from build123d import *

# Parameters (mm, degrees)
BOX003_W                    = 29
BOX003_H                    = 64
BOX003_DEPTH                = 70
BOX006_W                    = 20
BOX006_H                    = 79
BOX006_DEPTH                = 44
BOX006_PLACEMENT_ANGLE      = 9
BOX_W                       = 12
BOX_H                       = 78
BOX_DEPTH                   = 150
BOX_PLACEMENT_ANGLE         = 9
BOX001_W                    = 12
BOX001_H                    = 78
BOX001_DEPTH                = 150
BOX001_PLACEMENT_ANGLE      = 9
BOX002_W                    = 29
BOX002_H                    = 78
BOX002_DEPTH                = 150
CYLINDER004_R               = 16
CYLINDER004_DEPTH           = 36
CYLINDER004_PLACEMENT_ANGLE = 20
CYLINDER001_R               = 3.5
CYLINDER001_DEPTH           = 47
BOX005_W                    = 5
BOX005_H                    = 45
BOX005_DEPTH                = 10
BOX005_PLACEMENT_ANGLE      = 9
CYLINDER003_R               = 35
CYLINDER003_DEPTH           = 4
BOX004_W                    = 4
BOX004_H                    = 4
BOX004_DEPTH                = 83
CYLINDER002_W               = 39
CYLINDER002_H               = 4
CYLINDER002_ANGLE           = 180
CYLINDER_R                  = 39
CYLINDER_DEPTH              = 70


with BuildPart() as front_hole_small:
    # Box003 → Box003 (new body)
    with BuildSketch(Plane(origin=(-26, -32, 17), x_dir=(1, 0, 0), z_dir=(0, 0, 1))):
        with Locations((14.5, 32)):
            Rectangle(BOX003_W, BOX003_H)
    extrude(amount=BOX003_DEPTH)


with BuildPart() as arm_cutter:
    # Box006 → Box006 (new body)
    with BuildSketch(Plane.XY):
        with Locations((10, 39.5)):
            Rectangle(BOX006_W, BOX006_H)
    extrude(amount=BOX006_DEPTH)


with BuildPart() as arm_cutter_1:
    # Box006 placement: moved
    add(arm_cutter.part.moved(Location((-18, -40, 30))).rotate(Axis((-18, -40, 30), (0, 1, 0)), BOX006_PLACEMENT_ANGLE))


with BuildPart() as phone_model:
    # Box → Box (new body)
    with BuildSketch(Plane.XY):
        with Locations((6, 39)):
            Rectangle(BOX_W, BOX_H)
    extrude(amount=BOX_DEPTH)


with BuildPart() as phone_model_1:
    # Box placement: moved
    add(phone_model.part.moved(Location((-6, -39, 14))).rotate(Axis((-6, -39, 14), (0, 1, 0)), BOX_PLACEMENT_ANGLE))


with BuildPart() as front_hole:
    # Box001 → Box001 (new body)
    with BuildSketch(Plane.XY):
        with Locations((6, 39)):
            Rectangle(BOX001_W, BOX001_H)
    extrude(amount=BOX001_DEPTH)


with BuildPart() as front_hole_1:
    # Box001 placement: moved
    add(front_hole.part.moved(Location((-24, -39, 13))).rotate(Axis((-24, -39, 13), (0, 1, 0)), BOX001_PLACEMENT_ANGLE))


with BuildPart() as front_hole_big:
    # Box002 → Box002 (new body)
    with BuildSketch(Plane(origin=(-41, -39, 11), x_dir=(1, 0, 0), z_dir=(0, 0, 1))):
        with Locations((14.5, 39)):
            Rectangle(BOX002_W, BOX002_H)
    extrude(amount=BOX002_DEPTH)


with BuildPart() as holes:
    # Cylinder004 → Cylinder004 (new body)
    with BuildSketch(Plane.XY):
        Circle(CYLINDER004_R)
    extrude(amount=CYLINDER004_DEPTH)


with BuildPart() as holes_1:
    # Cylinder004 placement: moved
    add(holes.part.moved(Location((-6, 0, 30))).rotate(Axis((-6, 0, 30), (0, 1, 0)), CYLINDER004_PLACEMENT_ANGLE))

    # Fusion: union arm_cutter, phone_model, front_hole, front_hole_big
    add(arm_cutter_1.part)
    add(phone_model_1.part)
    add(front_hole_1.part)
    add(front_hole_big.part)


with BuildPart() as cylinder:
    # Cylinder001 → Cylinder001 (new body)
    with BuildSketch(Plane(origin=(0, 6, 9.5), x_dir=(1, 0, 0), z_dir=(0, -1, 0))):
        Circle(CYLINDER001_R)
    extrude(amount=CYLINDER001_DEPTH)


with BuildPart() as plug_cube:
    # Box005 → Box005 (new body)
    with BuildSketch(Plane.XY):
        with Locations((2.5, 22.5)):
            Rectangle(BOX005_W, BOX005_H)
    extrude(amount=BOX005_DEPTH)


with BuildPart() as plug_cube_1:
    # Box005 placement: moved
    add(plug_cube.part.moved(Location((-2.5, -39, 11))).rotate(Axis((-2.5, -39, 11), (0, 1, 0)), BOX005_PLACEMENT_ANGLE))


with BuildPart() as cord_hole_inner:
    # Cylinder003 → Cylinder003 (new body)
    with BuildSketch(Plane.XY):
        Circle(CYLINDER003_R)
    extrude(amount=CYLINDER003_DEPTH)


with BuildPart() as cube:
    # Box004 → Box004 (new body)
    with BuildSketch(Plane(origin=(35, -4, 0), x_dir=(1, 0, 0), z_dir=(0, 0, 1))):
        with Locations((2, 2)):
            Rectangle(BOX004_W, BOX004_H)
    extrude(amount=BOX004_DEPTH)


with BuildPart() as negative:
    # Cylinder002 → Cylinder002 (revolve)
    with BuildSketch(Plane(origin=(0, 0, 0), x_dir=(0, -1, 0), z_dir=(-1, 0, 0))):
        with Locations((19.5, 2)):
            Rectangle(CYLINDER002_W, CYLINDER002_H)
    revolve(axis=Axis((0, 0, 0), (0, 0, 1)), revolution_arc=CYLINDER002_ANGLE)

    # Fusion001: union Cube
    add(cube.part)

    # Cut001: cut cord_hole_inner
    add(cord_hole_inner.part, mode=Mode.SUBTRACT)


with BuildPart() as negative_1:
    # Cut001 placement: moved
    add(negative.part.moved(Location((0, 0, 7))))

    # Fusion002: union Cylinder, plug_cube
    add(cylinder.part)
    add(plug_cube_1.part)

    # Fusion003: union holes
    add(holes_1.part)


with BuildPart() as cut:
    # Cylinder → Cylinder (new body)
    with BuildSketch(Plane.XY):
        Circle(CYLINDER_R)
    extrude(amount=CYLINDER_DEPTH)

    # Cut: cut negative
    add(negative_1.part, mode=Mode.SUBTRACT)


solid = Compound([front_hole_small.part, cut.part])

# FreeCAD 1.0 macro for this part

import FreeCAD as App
import Part
import Sketcher

V = App.Vector
Q = App.Units.Quantity


def add_polygon(sketch, points):
    """Adds a closed chain of lines whose ends are joined by coincident constraints."""
    first, n = sketch.GeometryCount, len(points)
    for a, b in zip(points, points[1:] + points[:1]):
        sketch.addGeometry(Part.LineSegment(App.Vector(*a, 0), App.Vector(*b, 0)), False)
    for i in range(n):
        sketch.addConstraint(Sketcher.Constraint("Coincident", first + i, 2, first + (i + 1) % n, 1))

doc = App.newDocument("Part")
body = doc.addObject("PartDesign::Body", "Body")

sketch1 = doc.addObject("Sketcher::SketchObject", "Sketch")
body.addObject(sketch1)
sketch1.AttachmentSupport = (doc.XY_Plane, [""])
sketch1.MapMode = "FlatFace"
sketch1.AttachmentOffset = App.Placement(V(0, 0, 17), App.Rotation())
add_polygon(sketch1, [(-26, 32), (-26, -32), (3, -32), (3, 32)])
sketch1.addConstraint(Sketcher.Constraint("Vertical", 0))
sketch1.addConstraint(Sketcher.Constraint("Horizontal", 1))
sketch1.addConstraint(Sketcher.Constraint("Vertical", 2))
sketch1.addConstraint(Sketcher.Constraint("Horizontal", 3))
sketch1.addConstraint(Sketcher.Constraint("DistanceX", 1, 1, 1, 2, Q("29 mm")))
sketch1.addConstraint(Sketcher.Constraint("DistanceY", 0, 2, 0, 1, Q("64 mm")))
sketch1.addConstraint(Sketcher.Constraint("DistanceX", 0, 2, -1, 1, Q("26 mm")))
sketch1.addConstraint(Sketcher.Constraint("DistanceY", 0, 2, -1, 1, Q("32 mm")))
pad1 = doc.addObject("PartDesign::Pad", "Pad")
body.addObject(pad1)
pad1.Profile = sketch1
pad1.Length = 70
body2 = doc.addObject("PartDesign::Body", "Body001")

sketch2 = doc.addObject("Sketcher::SketchObject", "Sketch001")
body2.addObject(sketch2)
sketch2.AttachmentSupport = (doc.getObject("XY_Plane001"), [""])
sketch2.MapMode = "FlatFace"
add_polygon(sketch2, [(0, 79), (0, 0), (20, 0), (20, 79)])
sketch2.addConstraint(Sketcher.Constraint("Vertical", 0))
sketch2.addConstraint(Sketcher.Constraint("Horizontal", 1))
sketch2.addConstraint(Sketcher.Constraint("Vertical", 2))
sketch2.addConstraint(Sketcher.Constraint("Horizontal", 3))
sketch2.addConstraint(Sketcher.Constraint("Coincident", 0, 2, -1, 1))
sketch2.addConstraint(Sketcher.Constraint("DistanceX", 1, 1, 1, 2, Q("20 mm")))
sketch2.addConstraint(Sketcher.Constraint("DistanceY", 0, 2, 0, 1, Q("79 mm")))
pad2 = doc.addObject("PartDesign::Pad", "Pad001")
body2.addObject(pad2)
pad2.Profile = sketch2
pad2.Length = 44
body3 = doc.addObject("PartDesign::Body", "Body002")
doc.recompute()

body2.Placement = App.Placement(V(-18, -40, 30), App.Rotation(V(0, 1, 0), 9))
boolean = doc.addObject("PartDesign::Boolean", "Boolean")
body3.addObject(boolean)
boolean.Type = "Fuse"
boolean.addObjects([body2])
body4 = doc.addObject("PartDesign::Body", "Body003")

sketch3 = doc.addObject("Sketcher::SketchObject", "Sketch002")
body4.addObject(sketch3)
sketch3.AttachmentSupport = (doc.getObject("XY_Plane003"), [""])
sketch3.MapMode = "FlatFace"
add_polygon(sketch3, [(0, 78), (0, 0), (12, 0), (12, 78)])
sketch3.addConstraint(Sketcher.Constraint("Vertical", 0))
sketch3.addConstraint(Sketcher.Constraint("Horizontal", 1))
sketch3.addConstraint(Sketcher.Constraint("Vertical", 2))
sketch3.addConstraint(Sketcher.Constraint("Horizontal", 3))
sketch3.addConstraint(Sketcher.Constraint("Coincident", 0, 2, -1, 1))
sketch3.addConstraint(Sketcher.Constraint("DistanceX", 1, 1, 1, 2, Q("12 mm")))
sketch3.addConstraint(Sketcher.Constraint("DistanceY", 0, 2, 0, 1, Q("78 mm")))
pad3 = doc.addObject("PartDesign::Pad", "Pad002")
body4.addObject(pad3)
pad3.Profile = sketch3
pad3.Length = 150
body5 = doc.addObject("PartDesign::Body", "Body004")
doc.recompute()

body4.Placement = App.Placement(V(-6, -39, 14), App.Rotation(V(0, 1, 0), 9))
boolean2 = doc.addObject("PartDesign::Boolean", "Boolean001")
body5.addObject(boolean2)
boolean2.Type = "Fuse"
boolean2.addObjects([body4])
body6 = doc.addObject("PartDesign::Body", "Body005")

sketch4 = doc.addObject("Sketcher::SketchObject", "Sketch003")
body6.addObject(sketch4)
sketch4.AttachmentSupport = (doc.getObject("XY_Plane005"), [""])
sketch4.MapMode = "FlatFace"
add_polygon(sketch4, [(0, 78), (0, 0), (12, 0), (12, 78)])
sketch4.addConstraint(Sketcher.Constraint("Vertical", 0))
sketch4.addConstraint(Sketcher.Constraint("Horizontal", 1))
sketch4.addConstraint(Sketcher.Constraint("Vertical", 2))
sketch4.addConstraint(Sketcher.Constraint("Horizontal", 3))
sketch4.addConstraint(Sketcher.Constraint("Coincident", 0, 2, -1, 1))
sketch4.addConstraint(Sketcher.Constraint("DistanceX", 1, 1, 1, 2, Q("12 mm")))
sketch4.addConstraint(Sketcher.Constraint("DistanceY", 0, 2, 0, 1, Q("78 mm")))
pad4 = doc.addObject("PartDesign::Pad", "Pad003")
body6.addObject(pad4)
pad4.Profile = sketch4
pad4.Length = 150
body7 = doc.addObject("PartDesign::Body", "Body006")
doc.recompute()

body6.Placement = App.Placement(V(-24, -39, 13), App.Rotation(V(0, 1, 0), 9))
boolean3 = doc.addObject("PartDesign::Boolean", "Boolean002")
body7.addObject(boolean3)
boolean3.Type = "Fuse"
boolean3.addObjects([body6])
body8 = doc.addObject("PartDesign::Body", "Body007")

sketch5 = doc.addObject("Sketcher::SketchObject", "Sketch004")
body8.addObject(sketch5)
sketch5.AttachmentSupport = (doc.getObject("XY_Plane007"), [""])
sketch5.MapMode = "FlatFace"
sketch5.AttachmentOffset = App.Placement(V(0, 0, 11), App.Rotation())
add_polygon(sketch5, [(-41, 39), (-41, -39), (-12, -39), (-12, 39)])
sketch5.addConstraint(Sketcher.Constraint("Vertical", 0))
sketch5.addConstraint(Sketcher.Constraint("Horizontal", 1))
sketch5.addConstraint(Sketcher.Constraint("Vertical", 2))
sketch5.addConstraint(Sketcher.Constraint("Horizontal", 3))
sketch5.addConstraint(Sketcher.Constraint("DistanceX", 1, 1, 1, 2, Q("29 mm")))
sketch5.addConstraint(Sketcher.Constraint("DistanceY", 0, 2, 0, 1, Q("78 mm")))
sketch5.addConstraint(Sketcher.Constraint("DistanceX", 0, 2, -1, 1, Q("41 mm")))
sketch5.addConstraint(Sketcher.Constraint("DistanceY", 0, 2, -1, 1, Q("39 mm")))
pad5 = doc.addObject("PartDesign::Pad", "Pad004")
body8.addObject(pad5)
pad5.Profile = sketch5
pad5.Length = 150
body9 = doc.addObject("PartDesign::Body", "Body008")

sketch6 = doc.addObject("Sketcher::SketchObject", "Sketch005")
body9.addObject(sketch6)
sketch6.AttachmentSupport = (doc.getObject("XY_Plane008"), [""])
sketch6.MapMode = "FlatFace"
sketch6.addGeometry(Part.Circle(V(0, 0, 0), V(0, 0, 1), 16), False)
sketch6.addConstraint(Sketcher.Constraint("Coincident", 0, 3, -1, 1))
sketch6.addConstraint(Sketcher.Constraint("Diameter", 0, Q("32 mm")))
pad6 = doc.addObject("PartDesign::Pad", "Pad005")
body9.addObject(pad6)
pad6.Profile = sketch6
pad6.Length = 36
body10 = doc.addObject("PartDesign::Body", "Body009")
doc.recompute()

body9.Placement = App.Placement(V(-6, 0, 30), App.Rotation(V(0, 1, 0), 20))
boolean4 = doc.addObject("PartDesign::Boolean", "Boolean003")
body10.addObject(boolean4)
boolean4.Type = "Fuse"
boolean4.addObjects([body9])
doc.recompute()

boolean5 = doc.addObject("PartDesign::Boolean", "Boolean004")
body10.addObject(boolean5)
boolean5.Type = "Fuse"
boolean5.addObjects([body3])
doc.recompute()

boolean6 = doc.addObject("PartDesign::Boolean", "Boolean005")
body10.addObject(boolean6)
boolean6.Type = "Fuse"
boolean6.addObjects([body5])
doc.recompute()

boolean7 = doc.addObject("PartDesign::Boolean", "Boolean006")
body10.addObject(boolean7)
boolean7.Type = "Fuse"
boolean7.addObjects([body7])
doc.recompute()

boolean8 = doc.addObject("PartDesign::Boolean", "Boolean007")
body10.addObject(boolean8)
boolean8.Type = "Fuse"
boolean8.addObjects([body8])
body11 = doc.addObject("PartDesign::Body", "Body010")

sketch7 = doc.addObject("Sketcher::SketchObject", "Sketch006")
body11.addObject(sketch7)
sketch7.AttachmentSupport = (doc.getObject("XZ_Plane010"), [""])
sketch7.MapMode = "FlatFace"
sketch7.AttachmentOffset = App.Placement(V(0, 0, -6), App.Rotation())
sketch7.addGeometry(Part.Circle(V(0, 9.5, 0), V(0, 0, 1), 3.5), False)
sketch7.addConstraint(Sketcher.Constraint("PointOnObject", 0, 3, -2))
sketch7.addConstraint(Sketcher.Constraint("Diameter", 0, Q("7 mm")))
sketch7.addConstraint(Sketcher.Constraint("DistanceY", -1, 1, 0, 3, Q("9.5 mm")))
pad7 = doc.addObject("PartDesign::Pad", "Pad006")
body11.addObject(pad7)
pad7.Profile = sketch7
pad7.Length = 47
body12 = doc.addObject("PartDesign::Body", "Body011")

sketch8 = doc.addObject("Sketcher::SketchObject", "Sketch007")
body12.addObject(sketch8)
sketch8.AttachmentSupport = (doc.getObject("XY_Plane011"), [""])
sketch8.MapMode = "FlatFace"
add_polygon(sketch8, [(0, 45), (0, 0), (5, 0), (5, 45)])
sketch8.addConstraint(Sketcher.Constraint("Vertical", 0))
sketch8.addConstraint(Sketcher.Constraint("Horizontal", 1))
sketch8.addConstraint(Sketcher.Constraint("Vertical", 2))
sketch8.addConstraint(Sketcher.Constraint("Horizontal", 3))
sketch8.addConstraint(Sketcher.Constraint("Coincident", 0, 2, -1, 1))
sketch8.addConstraint(Sketcher.Constraint("DistanceX", 1, 1, 1, 2, Q("5 mm")))
sketch8.addConstraint(Sketcher.Constraint("DistanceY", 0, 2, 0, 1, Q("45 mm")))
pad8 = doc.addObject("PartDesign::Pad", "Pad007")
body12.addObject(pad8)
pad8.Profile = sketch8
pad8.Length = 10
body13 = doc.addObject("PartDesign::Body", "Body012")
doc.recompute()

body12.Placement = App.Placement(V(-2.5, -39, 11), App.Rotation(V(0, 1, 0), 9))
boolean9 = doc.addObject("PartDesign::Boolean", "Boolean008")
body13.addObject(boolean9)
boolean9.Type = "Fuse"
boolean9.addObjects([body12])
body14 = doc.addObject("PartDesign::Body", "Body013")

sketch9 = doc.addObject("Sketcher::SketchObject", "Sketch008")
body14.addObject(sketch9)
sketch9.AttachmentSupport = (doc.getObject("XY_Plane013"), [""])
sketch9.MapMode = "FlatFace"
sketch9.addGeometry(Part.Circle(V(0, 0, 0), V(0, 0, 1), 35), False)
sketch9.addConstraint(Sketcher.Constraint("Coincident", 0, 3, -1, 1))
sketch9.addConstraint(Sketcher.Constraint("Diameter", 0, Q("70 mm")))
pad9 = doc.addObject("PartDesign::Pad", "Pad008")
body14.addObject(pad9)
pad9.Profile = sketch9
pad9.Length = 4
body15 = doc.addObject("PartDesign::Body", "Body014")

sketch10 = doc.addObject("Sketcher::SketchObject", "Sketch009")
body15.addObject(sketch10)
sketch10.AttachmentSupport = (doc.getObject("XY_Plane014"), [""])
sketch10.MapMode = "FlatFace"
add_polygon(sketch10, [(35, 0), (35, -4), (39, -4), (39, 0)])
sketch10.addConstraint(Sketcher.Constraint("Vertical", 0))
sketch10.addConstraint(Sketcher.Constraint("Horizontal", 1))
sketch10.addConstraint(Sketcher.Constraint("Vertical", 2))
sketch10.addConstraint(Sketcher.Constraint("Horizontal", 3))
sketch10.addConstraint(Sketcher.Constraint("PointOnObject", 2, 2, -1))
sketch10.addConstraint(Sketcher.Constraint("Equal", 3, 0))
sketch10.addConstraint(Sketcher.Constraint("DistanceX", 1, 1, 1, 2, Q("4 mm")))
sketch10.addConstraint(Sketcher.Constraint("DistanceX", -1, 1, 0, 2, Q("35 mm")))
pad10 = doc.addObject("PartDesign::Pad", "Pad009")
body15.addObject(pad10)
pad10.Profile = sketch10
pad10.Length = 83
body16 = doc.addObject("PartDesign::Body", "Body015")

sketch11 = doc.addObject("Sketcher::SketchObject", "Sketch010")
body16.addObject(sketch11)
sketch11.AttachmentSupport = (doc.getObject("YZ_Plane015"), [""])
sketch11.MapMode = "FlatFace"
add_polygon(sketch11, [(0, 4), (0, 0), (-39, 0), (-39, 4)])
sketch11.addConstraint(Sketcher.Constraint("Vertical", 0))
sketch11.addConstraint(Sketcher.Constraint("Horizontal", 1))
sketch11.addConstraint(Sketcher.Constraint("Vertical", 2))
sketch11.addConstraint(Sketcher.Constraint("Horizontal", 3))
sketch11.addConstraint(Sketcher.Constraint("Coincident", 0, 2, -1, 1))
sketch11.addConstraint(Sketcher.Constraint("DistanceX", 1, 2, 1, 1, Q("39 mm")))
sketch11.addConstraint(Sketcher.Constraint("DistanceY", 0, 2, 0, 1, Q("4 mm")))
revolution = doc.addObject("PartDesign::Revolution", "Revolution")
body16.addObject(revolution)
revolution.Profile = sketch11
revolution.ReferenceAxis = (sketch11, ["V_Axis"])
revolution.Angle = 180
doc.recompute()

boolean10 = doc.addObject("PartDesign::Boolean", "Boolean009")
body16.addObject(boolean10)
boolean10.Type = "Fuse"
boolean10.addObjects([body15])
doc.recompute()

boolean11 = doc.addObject("PartDesign::Boolean", "Boolean010")
body16.addObject(boolean11)
boolean11.Type = "Cut"
boolean11.addObjects([body14])
body17 = doc.addObject("PartDesign::Body", "Body016")
doc.recompute()

body16.Placement = App.Placement(V(0, 0, 7), App.Rotation(V(0, 0, 1), 0))
boolean12 = doc.addObject("PartDesign::Boolean", "Boolean011")
body17.addObject(boolean12)
boolean12.Type = "Fuse"
boolean12.addObjects([body16])
doc.recompute()

boolean13 = doc.addObject("PartDesign::Boolean", "Boolean012")
body17.addObject(boolean13)
boolean13.Type = "Fuse"
boolean13.addObjects([body11])
doc.recompute()

boolean14 = doc.addObject("PartDesign::Boolean", "Boolean013")
body17.addObject(boolean14)
boolean14.Type = "Fuse"
boolean14.addObjects([body13])
doc.recompute()

boolean15 = doc.addObject("PartDesign::Boolean", "Boolean014")
body17.addObject(boolean15)
boolean15.Type = "Fuse"
boolean15.addObjects([body10])
body18 = doc.addObject("PartDesign::Body", "Body017")

sketch12 = doc.addObject("Sketcher::SketchObject", "Sketch011")
body18.addObject(sketch12)
sketch12.AttachmentSupport = (doc.getObject("XY_Plane017"), [""])
sketch12.MapMode = "FlatFace"
sketch12.addGeometry(Part.Circle(V(0, 0, 0), V(0, 0, 1), 39), False)
sketch12.addConstraint(Sketcher.Constraint("Coincident", 0, 3, -1, 1))
sketch12.addConstraint(Sketcher.Constraint("Diameter", 0, Q("78 mm")))
pad11 = doc.addObject("PartDesign::Pad", "Pad010")
body18.addObject(pad11)
pad11.Profile = sketch12
pad11.Length = 70
doc.recompute()

boolean16 = doc.addObject("PartDesign::Boolean", "Boolean015")
body18.addObject(boolean16)
boolean16.Type = "Cut"
boolean16.addObjects([body17])

doc.recompute()
